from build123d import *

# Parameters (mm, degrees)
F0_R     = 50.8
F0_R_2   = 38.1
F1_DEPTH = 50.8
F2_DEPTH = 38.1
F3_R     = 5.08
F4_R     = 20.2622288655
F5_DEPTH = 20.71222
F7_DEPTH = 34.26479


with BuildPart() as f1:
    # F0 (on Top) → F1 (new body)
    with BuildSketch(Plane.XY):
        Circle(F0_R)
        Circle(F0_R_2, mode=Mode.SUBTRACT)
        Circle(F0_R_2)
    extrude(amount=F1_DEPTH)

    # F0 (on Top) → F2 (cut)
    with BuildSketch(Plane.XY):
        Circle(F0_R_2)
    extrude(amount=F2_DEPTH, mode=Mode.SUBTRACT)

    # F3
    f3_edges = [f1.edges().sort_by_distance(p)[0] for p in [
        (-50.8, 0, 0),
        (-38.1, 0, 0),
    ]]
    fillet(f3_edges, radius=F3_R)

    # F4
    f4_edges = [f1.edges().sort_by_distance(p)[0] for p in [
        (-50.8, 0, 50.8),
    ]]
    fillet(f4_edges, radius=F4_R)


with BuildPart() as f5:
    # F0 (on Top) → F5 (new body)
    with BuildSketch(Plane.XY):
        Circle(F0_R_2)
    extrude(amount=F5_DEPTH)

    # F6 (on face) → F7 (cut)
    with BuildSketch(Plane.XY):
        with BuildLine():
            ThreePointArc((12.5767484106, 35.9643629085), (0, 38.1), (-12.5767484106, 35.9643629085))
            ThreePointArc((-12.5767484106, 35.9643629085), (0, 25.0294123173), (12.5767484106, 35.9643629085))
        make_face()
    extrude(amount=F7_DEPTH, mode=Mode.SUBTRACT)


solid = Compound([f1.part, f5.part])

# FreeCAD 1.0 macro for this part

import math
import FreeCAD as App
import Part
import Sketcher

V = App.Vector
Q = App.Units.Quantity


def edges_at(feature, points):
    """Names of the edges that pass closest to the given points."""
    edges = feature.Shape.Edges
    near = lambda p: min(range(len(edges)), key=lambda i: edges[i].distToShape(Part.Vertex(*p))[0])
    return sorted({f"Edge{near(p) + 1}" for p in points})

doc = App.newDocument("Part")
body = doc.addObject("PartDesign::Body", "Body")

sketch1 = body.newObject("Sketcher::SketchObject", "Sketch")
sketch1.AttachmentSupport = (doc.getObject("XY_Plane"), [""])
sketch1.MapMode = "FlatFace"
sketch1.addGeometry(Part.Circle(V(0, 0, 0), V(0, 0, 1), 51), False)
sketch1.addConstraint([
    Sketcher.Constraint("Coincident", 0, 3, -1, 1),
    Sketcher.Constraint("Diameter", 0, Q("4 in")),
])
pad1 = body.newObject("PartDesign::Pad", "Pad")
pad1.Profile = sketch1
pad1.Length = Q("2 in")

sketch2 = body.newObject("Sketcher::SketchObject", "Sketch001")
sketch2.AttachmentSupport = (doc.getObject("XY_Plane"), [""])
sketch2.MapMode = "FlatFace"
sketch2.addGeometry(Part.Circle(V(0, 0, 0), V(0, 0, 1), 38), False)
sketch2.addConstraint([
    Sketcher.Constraint("Coincident", 0, 3, -1, 1),
    Sketcher.Constraint("Diameter", 0, Q("3 in")),
])
pocket1 = body.newObject("PartDesign::Pocket", "Pocket")
pocket1.Profile = sketch2
pocket1.Length = Q("1.5 in")
pocket1.Reversed = True
doc.recompute()

fillet = body.newObject("PartDesign::Fillet", "Fillet")
fillet.Base = (pocket1, edges_at(pocket1, [(-50.8, 0, 0), (-38.1, 0, 0)]))
fillet.Radius = Q("0.2 in")
doc.recompute()

fillet2 = body.newObject("PartDesign::Fillet", "Fillet001")
fillet2.Base = (fillet, edges_at(fillet, [(-50.8, 0, 50.8)]))
fillet2.Radius = 20.262229
body2 = doc.addObject("PartDesign::Body", "Body001")

sketch3 = body2.newObject("Sketcher::SketchObject", "Sketch002")
sketch3.AttachmentSupport = (doc.getObject("XY_Plane001"), [""])
sketch3.MapMode = "FlatFace"
sketch3.addGeometry(Part.Circle(V(0, 0, 0), V(0, 0, 1), 38), False)
sketch3.addConstraint([
    Sketcher.Constraint("Coincident", 0, 3, -1, 1),
    Sketcher.Constraint("Diameter", 0, Q("3 in")),
])
pad2 = body2.newObject("PartDesign::Pad", "Pad001")
pad2.Profile = sketch3
pad2.Length = 20.71222

sketch4 = body2.newObject("Sketcher::SketchObject", "Sketch003")
sketch4.AttachmentSupport = (doc.getObject("XY_Plane001"), [""])
sketch4.MapMode = "FlatFace"
sketch4.addGeometry([
    Part.ArcOfCircle(Part.Circle(V(0, 0, 0), V(0, 0, 1), 38), math.radians(71), math.radians(109)),
    Part.ArcOfCircle(Part.Circle(V(0, 38, 0), V(0, 0, 1), 13), math.radians(-172), math.radians(-8)),
], False)
sketch4.addConstraint([
    Sketcher.Constraint("Coincident", 0, 1, 1, 2),
    Sketcher.Constraint("Coincident", 1, 1, 0, 2),
    Sketcher.Constraint("Coincident", 0, 3, -1, 1),
    Sketcher.Constraint("PointOnObject", 1, 3, -2),
    Sketcher.Constraint("Radius", 0, Q("1.5 in")),
    Sketcher.Constraint("Radius", 1, Q("0.5 in")),
    Sketcher.Constraint("DistanceX", -1, 1, 0, 1, Q("12.576748 mm")),
])
pocket2 = body2.newObject("PartDesign::Pocket", "Pocket001")
pocket2.Profile = sketch4
pocket2.Length = 34.26479
pocket2.Reversed = True

doc.recompute()
